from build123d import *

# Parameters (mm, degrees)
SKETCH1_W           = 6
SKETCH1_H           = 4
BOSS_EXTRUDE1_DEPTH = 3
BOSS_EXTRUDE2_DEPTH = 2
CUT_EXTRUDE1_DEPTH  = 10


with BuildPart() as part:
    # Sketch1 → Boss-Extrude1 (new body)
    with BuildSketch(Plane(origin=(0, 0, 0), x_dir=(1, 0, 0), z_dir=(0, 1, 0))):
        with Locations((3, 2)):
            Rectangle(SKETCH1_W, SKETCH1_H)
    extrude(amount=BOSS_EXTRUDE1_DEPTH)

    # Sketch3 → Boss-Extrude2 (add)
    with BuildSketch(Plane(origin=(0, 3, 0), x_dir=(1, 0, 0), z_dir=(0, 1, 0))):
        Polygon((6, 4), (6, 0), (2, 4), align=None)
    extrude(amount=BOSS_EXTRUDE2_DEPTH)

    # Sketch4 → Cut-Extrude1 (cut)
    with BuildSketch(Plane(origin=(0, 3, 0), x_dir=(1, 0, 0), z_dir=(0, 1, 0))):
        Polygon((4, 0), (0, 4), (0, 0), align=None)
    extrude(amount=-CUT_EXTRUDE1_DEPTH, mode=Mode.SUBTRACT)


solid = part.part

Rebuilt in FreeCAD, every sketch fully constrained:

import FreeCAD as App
import Part
import Sketcher

V = App.Vector


def add_polygon(sketch, points):
    """Adds a closed chain of lines whose ends are joined by coincident constraints."""
    first, n = sketch.GeometryCount, len(points)
    for a, b in zip(points, points[1:] + points[:1]):
        sketch.addGeometry(Part.LineSegment(App.Vector(*a, 0), App.Vector(*b, 0)), False)
    for i in range(n):
        sketch.addConstraint(Sketcher.Constraint("Coincident", first + i, 2, first + (i + 1) % n, 1))

doc = App.newDocument("Part")
body = doc.addObject("PartDesign::Body", "Body")

# Sketch on XZ plane
sketch1 = body.newObject("Sketcher::SketchObject", "Sketch")
sketch1.AttachmentSupport = (doc.getObject("XZ_Plane"), [""])
sketch1.MapMode = "FlatFace"
add_polygon(sketch1, [(0, -4), (0, 0), (6, 0), (6, -4)])  # lines 0-3
sketch1.addConstraint([
    Sketcher.Constraint("Vertical", 0),
    Sketcher.Constraint("Horizontal", 1),
    Sketcher.Constraint("Vertical", 2),
    Sketcher.Constraint("Horizontal", 3),
    Sketcher.Constraint("Coincident", 0, 2, -1, 1),
    Sketcher.Constraint("DistanceX", 1, 1, 1, 2, 6.0),
    Sketcher.Constraint("DistanceY", 0, 1, 0, 2, 4.0),
])
pad1 = body.newObject("PartDesign::Pad", "Pad")
pad1.Profile = sketch1
pad1.Length = 3
pad1.Reversed = True

# Sketch on XZ plane
sketch2 = body.newObject("Sketcher::SketchObject", "Sketch001")
sketch2.AttachmentSupport = (doc.getObject("XZ_Plane"), [""])
sketch2.MapMode = "FlatFace"
sketch2.AttachmentOffset = App.Placement(V(0, 0, -3), App.Rotation())
add_polygon(sketch2, [(6, 0), (6, -4), (2, -4)])  # lines 0-2
sketch2.addConstraint([
    Sketcher.Constraint("Vertical", 0),
    Sketcher.Constraint("Horizontal", 1),
    Sketcher.Constraint("PointOnObject", 2, 2, -1),
    Sketcher.Constraint("Equal", 1, 0),
    Sketcher.Constraint("DistanceX", 1, 2, 1, 1, 4.0),
    Sketcher.Constraint("DistanceX", -1, 1, 0, 2, 6.0),
])
pad2 = body.newObject("PartDesign::Pad", "Pad001")
pad2.Profile = sketch2
pad2.Length = 2
pad2.Reversed = True

# Sketch on XZ plane
sketch3 = body.newObject("Sketcher::SketchObject", "Sketch002")
sketch3.AttachmentSupport = (doc.getObject("XZ_Plane"), [""])
sketch3.MapMode = "FlatFace"
sketch3.AttachmentOffset = App.Placement(V(0, 0, -3), App.Rotation())
add_polygon(sketch3, [(4, 0), (0, -4), (0, 0)])  # lines 0-2
sketch3.addConstraint([
    Sketcher.Constraint("Vertical", 1),
    Sketcher.Constraint("Horizontal", 2),
    Sketcher.Constraint("Coincident", 1, 2, -1, 1),
    Sketcher.Constraint("Equal", 2, 1),
    Sketcher.Constraint("DistanceX", 2, 1, 2, 2, 4.0),
])
pocket1 = body.newObject("PartDesign::Pocket", "Pocket")
pocket1.Profile = sketch3
pocket1.Length = 10
pocket1.Reversed = True

doc.recompute()
